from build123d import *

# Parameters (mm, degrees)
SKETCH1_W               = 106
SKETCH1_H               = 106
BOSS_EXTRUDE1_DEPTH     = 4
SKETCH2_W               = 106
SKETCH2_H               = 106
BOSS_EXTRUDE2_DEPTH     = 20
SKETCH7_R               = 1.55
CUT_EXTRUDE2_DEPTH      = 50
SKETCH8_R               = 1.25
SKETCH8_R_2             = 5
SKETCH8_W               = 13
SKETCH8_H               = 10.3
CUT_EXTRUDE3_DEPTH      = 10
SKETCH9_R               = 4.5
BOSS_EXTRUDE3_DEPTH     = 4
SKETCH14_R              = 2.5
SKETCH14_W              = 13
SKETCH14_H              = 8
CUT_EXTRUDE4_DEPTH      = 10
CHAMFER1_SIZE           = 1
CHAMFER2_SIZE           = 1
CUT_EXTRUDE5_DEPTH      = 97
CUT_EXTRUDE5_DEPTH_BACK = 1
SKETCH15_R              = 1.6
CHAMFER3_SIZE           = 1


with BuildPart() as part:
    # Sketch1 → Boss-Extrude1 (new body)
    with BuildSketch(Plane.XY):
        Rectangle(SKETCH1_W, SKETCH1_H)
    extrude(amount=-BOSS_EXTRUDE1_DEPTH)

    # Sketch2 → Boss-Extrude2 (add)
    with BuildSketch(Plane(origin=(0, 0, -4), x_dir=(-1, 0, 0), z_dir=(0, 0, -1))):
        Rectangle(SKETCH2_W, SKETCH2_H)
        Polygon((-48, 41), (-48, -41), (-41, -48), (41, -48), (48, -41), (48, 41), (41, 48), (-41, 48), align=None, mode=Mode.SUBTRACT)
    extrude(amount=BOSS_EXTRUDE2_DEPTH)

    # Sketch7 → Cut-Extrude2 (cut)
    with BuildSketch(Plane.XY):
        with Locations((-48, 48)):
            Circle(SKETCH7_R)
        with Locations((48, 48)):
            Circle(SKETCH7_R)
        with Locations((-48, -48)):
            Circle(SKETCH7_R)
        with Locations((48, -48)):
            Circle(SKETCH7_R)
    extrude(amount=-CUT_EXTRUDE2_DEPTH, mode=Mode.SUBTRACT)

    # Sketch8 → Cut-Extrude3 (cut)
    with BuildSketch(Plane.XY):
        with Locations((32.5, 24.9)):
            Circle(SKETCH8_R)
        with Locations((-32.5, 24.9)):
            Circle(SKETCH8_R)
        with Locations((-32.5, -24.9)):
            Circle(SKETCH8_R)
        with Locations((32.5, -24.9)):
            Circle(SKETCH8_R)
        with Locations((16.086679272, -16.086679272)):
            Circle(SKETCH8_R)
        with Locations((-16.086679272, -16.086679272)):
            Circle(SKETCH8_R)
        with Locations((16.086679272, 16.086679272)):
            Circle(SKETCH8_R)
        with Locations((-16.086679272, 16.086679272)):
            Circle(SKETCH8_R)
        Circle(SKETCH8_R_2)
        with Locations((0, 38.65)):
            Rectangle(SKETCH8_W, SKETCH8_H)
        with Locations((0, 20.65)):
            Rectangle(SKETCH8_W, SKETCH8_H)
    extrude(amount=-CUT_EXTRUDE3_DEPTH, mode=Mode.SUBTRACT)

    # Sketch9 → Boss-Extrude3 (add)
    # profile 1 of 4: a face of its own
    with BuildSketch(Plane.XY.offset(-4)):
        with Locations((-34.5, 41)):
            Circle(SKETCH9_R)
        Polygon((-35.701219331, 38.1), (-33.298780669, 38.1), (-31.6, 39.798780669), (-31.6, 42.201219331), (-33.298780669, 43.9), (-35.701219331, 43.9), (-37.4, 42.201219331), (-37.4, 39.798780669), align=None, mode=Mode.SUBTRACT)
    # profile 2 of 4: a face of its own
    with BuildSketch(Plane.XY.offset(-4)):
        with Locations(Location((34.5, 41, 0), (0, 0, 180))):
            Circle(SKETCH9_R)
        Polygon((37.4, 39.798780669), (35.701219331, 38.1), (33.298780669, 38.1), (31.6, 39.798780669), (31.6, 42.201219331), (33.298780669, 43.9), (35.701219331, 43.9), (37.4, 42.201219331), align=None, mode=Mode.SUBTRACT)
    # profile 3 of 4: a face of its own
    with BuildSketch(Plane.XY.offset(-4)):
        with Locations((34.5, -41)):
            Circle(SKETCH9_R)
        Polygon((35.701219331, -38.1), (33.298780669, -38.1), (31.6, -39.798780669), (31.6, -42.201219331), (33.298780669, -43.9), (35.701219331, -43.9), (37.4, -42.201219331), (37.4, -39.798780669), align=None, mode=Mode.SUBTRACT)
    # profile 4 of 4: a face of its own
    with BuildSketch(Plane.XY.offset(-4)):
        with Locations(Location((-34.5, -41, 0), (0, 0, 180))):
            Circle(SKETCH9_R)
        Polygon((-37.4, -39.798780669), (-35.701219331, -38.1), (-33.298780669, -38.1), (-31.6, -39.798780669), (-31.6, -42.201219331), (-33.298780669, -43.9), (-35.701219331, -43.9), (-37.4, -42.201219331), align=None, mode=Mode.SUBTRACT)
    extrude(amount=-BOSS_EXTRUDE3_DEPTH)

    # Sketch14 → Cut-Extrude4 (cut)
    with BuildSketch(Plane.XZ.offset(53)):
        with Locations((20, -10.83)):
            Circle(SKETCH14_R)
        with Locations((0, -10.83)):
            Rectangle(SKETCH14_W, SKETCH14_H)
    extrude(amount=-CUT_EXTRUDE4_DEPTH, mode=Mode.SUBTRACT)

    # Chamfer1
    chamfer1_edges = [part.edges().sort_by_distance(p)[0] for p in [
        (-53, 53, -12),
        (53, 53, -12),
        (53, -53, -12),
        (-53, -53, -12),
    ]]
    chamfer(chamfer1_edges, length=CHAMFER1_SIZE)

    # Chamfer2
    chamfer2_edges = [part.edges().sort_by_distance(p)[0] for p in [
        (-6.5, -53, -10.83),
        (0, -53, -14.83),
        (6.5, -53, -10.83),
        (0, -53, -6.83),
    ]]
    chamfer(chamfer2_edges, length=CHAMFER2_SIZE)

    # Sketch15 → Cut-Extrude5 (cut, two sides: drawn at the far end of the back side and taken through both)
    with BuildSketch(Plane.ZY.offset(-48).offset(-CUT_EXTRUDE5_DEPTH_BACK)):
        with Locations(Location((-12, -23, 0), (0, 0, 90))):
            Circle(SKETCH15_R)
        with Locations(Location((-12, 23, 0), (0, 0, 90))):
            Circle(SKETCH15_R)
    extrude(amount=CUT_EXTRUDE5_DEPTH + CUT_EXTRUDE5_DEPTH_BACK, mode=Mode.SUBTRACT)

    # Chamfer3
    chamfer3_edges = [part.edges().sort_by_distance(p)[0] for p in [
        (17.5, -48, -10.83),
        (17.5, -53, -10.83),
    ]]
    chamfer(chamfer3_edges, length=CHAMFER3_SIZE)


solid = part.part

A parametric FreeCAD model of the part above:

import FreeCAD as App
import Part
import Sketcher
from FreeCAD import Vector


def edges_at(feature, points):
    """Names of the edges that pass closest to the given points."""
    edges = feature.Shape.Edges
    near = lambda p: min(range(len(edges)), key=lambda i: edges[i].distToShape(Part.Vertex(*p))[0])
    return sorted({f"Edge{near(p) + 1}" for p in points})


def add_polygon(sketch, points):
    """Adds a closed chain of lines whose ends are joined by coincident constraints."""
    first, n = sketch.GeometryCount, len(points)
    for a, b in zip(points, points[1:] + points[:1]):
        sketch.addGeometry(Part.LineSegment(App.Vector(*a, 0), App.Vector(*b, 0)), False)
    for i in range(n):
        sketch.addConstraint(Sketcher.Constraint("Coincident", first + i, 2, first + (i + 1) % n, 1))

doc = App.newDocument("Part")
params = doc.addObject("Spreadsheet::Sheet", "Params")
for row, (alias, value) in enumerate([
    ("sketch1_width", "106 mm"),
    ("pad1_length", "4 mm"),
    ("sketch2_width", "106 mm"),
    ("sketch2_width2", "82 mm"),
    ("pad2_length", "20 mm"),
    ("sketch3_diameter", "3.1 mm"),
    ("pocket1_length", "50 mm"),
    ("sketch4_diameter", "10 mm"),
    ("sketch4_diameter2", "2.5 mm"),
    ("sketch4_width", "13 mm"),
    ("sketch4_height", "10.3 mm"),
    ("pocket2_length", "10 mm"),
    ("sketch5_diameter", "9 mm"),
    ("pad3_length", "4 mm"),
    ("sketch6_diameter", "5 mm"),
    ("sketch6_width", "13 mm"),
    ("sketch6_height", "8 mm"),
    ("pocket3_length", "10 mm"),
    ("chamfer_size", "1 mm"),
    ("chamfer2_size", "1 mm"),
    ("sketch7_diameter", "3.2 mm"),
    ("pocket4_length", "97 mm"),
    ("pocket4_length2", "1 mm"),
    ("chamfer3_size", "1 mm"),
], start=1):
    params.set(f"A{row}", alias)
    params.set(f"B{row}", "=" + value)
    params.setAlias(f"B{row}", alias)

body = doc.addObject("PartDesign::Body", "Body")

# Sketch on XY plane
sketch1 = body.newObject("Sketcher::SketchObject", "Sketch")
sketch1.AttachmentSupport = (doc.getObject("XY_Plane"), [""])
sketch1.MapMode = "FlatFace"
add_polygon(sketch1, [(-53, 53), (-53, -53), (53, -53), (53, 53)])  # lines 0-3
sketch1.addConstraint(Sketcher.Constraint("Vertical", 0))
sketch1.addConstraint(Sketcher.Constraint("Horizontal", 1))
sketch1.addConstraint(Sketcher.Constraint("Vertical", 2))
sketch1.addConstraint(Sketcher.Constraint("Horizontal", 3))
sketch1.addConstraint(Sketcher.Constraint("Symmetric", 0, 2, 2, 2, -1, 1))
sketch1.addConstraint(Sketcher.Constraint("Equal", 3, 0))
sketch1.addConstraint(Sketcher.Constraint("DistanceX", 1, 1, 1, 2, 106.0))
sketch1.setExpression("Constraints[10]", "Params.sketch1_width")
pad1 = body.newObject("PartDesign::Pad", "Pad")
pad1.Profile = sketch1
pad1.setExpression("Length", "Params.pad1_length")
pad1.Reversed = True

# Sketch on XY plane
sketch2 = body.newObject("Sketcher::SketchObject", "Sketch001")
sketch2.AttachmentSupport = (doc.getObject("XY_Plane"), [""])
sketch2.MapMode = "FlatFace"
sketch2.AttachmentOffset = App.Placement(Vector(0, 0, -4), App.Rotation())
add_polygon(sketch2, [(53, 53), (53, -53), (-53, -53), (-53, 53)])  # lines 0-3
add_polygon(sketch2, [(48, -41), (48, 41), (41, 48), (-41, 48), (-48, 41), (-48, -41), (-41, -48), (41, -48)])  # lines 4-11
sketch2.addConstraint(Sketcher.Constraint("Vertical", 0))
sketch2.addConstraint(Sketcher.Constraint("Horizontal", 1))
sketch2.addConstraint(Sketcher.Constraint("Vertical", 2))
sketch2.addConstraint(Sketcher.Constraint("Horizontal", 3))
sketch2.addConstraint(Sketcher.Constraint("Vertical", 4))
sketch2.addConstraint(Sketcher.Constraint("Horizontal", 6))
sketch2.addConstraint(Sketcher.Constraint("Vertical", 8))
sketch2.addConstraint(Sketcher.Constraint("Horizontal", 10))
sketch2.addConstraint(Sketcher.Constraint("Symmetric", 0, 2, 2, 2, -1, 1))
sketch2.addConstraint(Sketcher.Constraint("Symmetric", 4, 2, 8, 2, -1, 1))
sketch2.addConstraint(Sketcher.Constraint("Symmetric", 5, 2, 9, 2, -1, 1))
sketch2.addConstraint(Sketcher.Constraint("Perpendicular", 5, 7))
sketch2.addConstraint(Sketcher.Constraint("Perpendicular", 9, 11))
sketch2.addConstraint(Sketcher.Constraint("Horizontal", 4, 2, 7, 2))
sketch2.addConstraint(Sketcher.Constraint("Horizontal", 8, 2, 11, 2))
sketch2.addConstraint(Sketcher.Constraint("Vertical", 6, 2, 9, 2))
sketch2.addConstraint(Sketcher.Constraint("Equal", 3, 0))
sketch2.addConstraint(Sketcher.Constraint("Equal", 10, 4))
sketch2.addConstraint(Sketcher.Constraint("DistanceX", 1, 2, 1, 1, 106.0))
sketch2.addConstraint(Sketcher.Constraint("DistanceX", 6, 2, 6, 1, 82.0))
sketch2.addConstraint(Sketcher.Constraint("DistanceX", -1, 1, 4, 2, 48.0))
sketch2.setExpression("Constraints[30]", "Params.sketch2_width")
sketch2.setExpression("Constraints[31]", "Params.sketch2_width2")
pad2 = body.newObject("PartDesign::Pad", "Pad001")
pad2.Profile = sketch2
pad2.setExpression("Length", "Params.pad2_length")
pad2.Reversed = True

# Sketch on XY plane
sketch3 = body.newObject("Sketcher::SketchObject", "Sketch002")
sketch3.AttachmentSupport = (doc.getObject("XY_Plane"), [""])
sketch3.MapMode = "FlatFace"
sketch3.addGeometry(Part.Circle(Vector(-48, 48, 0), Vector(0, 0, 1), 1.55), False)
sketch3.addGeometry(Part.Circle(Vector(48, 48, 0), Vector(0, 0, 1), 1.55), False)
sketch3.addGeometry(Part.Circle(Vector(-48, -48, 0), Vector(0, 0, 1), 1.55), False)
sketch3.addGeometry(Part.Circle(Vector(48, -48, 0), Vector(0, 0, 1), 1.55), False)
sketch3.addConstraint(Sketcher.Constraint("Equal", 0, 1))
sketch3.addConstraint(Sketcher.Constraint("Equal", 1, 2))
sketch3.addConstraint(Sketcher.Constraint("Equal", 2, 3))
sketch3.addConstraint(Sketcher.Constraint("Symmetric", 1, 3, 2, 3, -1, 1))
sketch3.addConstraint(Sketcher.Constraint("Symmetric", 0, 3, 3, 3, -1, 1))
sketch3.addConstraint(Sketcher.Constraint("Symmetric", 0, 3, 1, 3, -2))
sketch3.addConstraint(Sketcher.Constraint("Diameter", 0, 3.1))
sketch3.addConstraint(Sketcher.Constraint("DistanceX", 0, 3, -1, 1, 48.0))
sketch3.addConstraint(Sketcher.Constraint("DistanceY", -1, 1, 0, 3, 48.0))
sketch3.setExpression("Constraints[6]", "Params.sketch3_diameter")
pocket1 = body.newObject("PartDesign::Pocket", "Pocket")
pocket1.Profile = sketch3
pocket1.setExpression("Length", "Params.pocket1_length")

# Sketch on XY plane
sketch4 = body.newObject("Sketcher::SketchObject", "Sketch003")
sketch4.AttachmentSupport = (doc.getObject("XY_Plane"), [""])
sketch4.MapMode = "FlatFace"
sketch4.addGeometry(Part.Circle(Vector(32.5, 24.9, 0), Vector(0, 0, 1), 1.25), False)  # 0
sketch4.addGeometry(Part.Circle(Vector(-32.5, 24.9, 0), Vector(0, 0, 1), 1.25), False)  # 1
sketch4.addGeometry(Part.Circle(Vector(-32.5, -24.9, 0), Vector(0, 0, 1), 1.25), False)  # 2
sketch4.addGeometry(Part.Circle(Vector(32.5, -24.9, 0), Vector(0, 0, 1), 1.25), False)  # 3
sketch4.addGeometry(Part.Circle(Vector(16.086679, -16.086679, 0), Vector(0, 0, 1), 1.25), False)  # 4
sketch4.addGeometry(Part.Circle(Vector(-16.086679, -16.086679, 0), Vector(0, 0, 1), 1.25), False)  # 5
sketch4.addGeometry(Part.Circle(Vector(16.086679, 16.086679, 0), Vector(0, 0, 1), 1.25), False)  # 6
sketch4.addGeometry(Part.Circle(Vector(-16.086679, 16.086679, 0), Vector(0, 0, 1), 1.25), False)  # 7
sketch4.addGeometry(Part.Circle(Vector(0, 0, 0), Vector(0, 0, 1), 5), False)  # 8
add_polygon(sketch4, [(-6.5, 43.8), (-6.5, 33.5), (6.5, 33.5), (6.5, 43.8)])  # lines 9-12
add_polygon(sketch4, [(-6.5, 25.8), (-6.5, 15.5), (6.5, 15.5), (6.5, 25.8)])  # lines 13-16
sketch4.addConstraint(Sketcher.Constraint("Vertical", 9))
sketch4.addConstraint(Sketcher.Constraint("Horizontal", 10))
sketch4.addConstraint(Sketcher.Constraint("Vertical", 11))
sketch4.addConstraint(Sketcher.Constraint("Horizontal", 12))
sketch4.addConstraint(Sketcher.Constraint("Vertical", 13))
sketch4.addConstraint(Sketcher.Constraint("Horizontal", 14))
sketch4.addConstraint(Sketcher.Constraint("Vertical", 15))
sketch4.addConstraint(Sketcher.Constraint("Horizontal", 16))
sketch4.addConstraint(Sketcher.Constraint("Coincident", 8, 3, -1, 1))
sketch4.addConstraint(Sketcher.Constraint("Equal", 0, 1))
sketch4.addConstraint(Sketcher.Constraint("Equal", 1, 2))
sketch4.addConstraint(Sketcher.Constraint("Equal", 2, 3))
sketch4.addConstraint(Sketcher.Constraint("Equal", 3, 4))
sketch4.addConstraint(Sketcher.Constraint("Equal", 4, 5))
sketch4.addConstraint(Sketcher.Constraint("Equal", 5, 6))
sketch4.addConstraint(Sketcher.Constraint("Equal", 6, 7))
sketch4.addConstraint(Sketcher.Constraint("Symmetric", 0, 3, 2, 3, -1, 1))
sketch4.addConstraint(Sketcher.Constraint("Symmetric", 1, 3, 3, 3, -1, 1))
sketch4.addConstraint(Sketcher.Constraint("Symmetric", 5, 3, 6, 3, -1, 1))
sketch4.addConstraint(Sketcher.Constraint("Symmetric", 4, 3, 7, 3, -1, 1))
sketch4.addConstraint(Sketcher.Constraint("Symmetric", 0, 3, 1, 3, -2))
sketch4.addConstraint(Sketcher.Constraint("Symmetric", 4, 3, 5, 3, -2))
sketch4.addConstraint(Sketcher.Constraint("Vertical", 12, 2, 13, 2))
sketch4.addConstraint(Sketcher.Constraint("Vertical", 11, 2, 14, 2))
sketch4.addConstraint(Sketcher.Constraint("Equal", 11, 13))
sketch4.addConstraint(Sketcher.Constraint("Diameter", 8, 10.0))
sketch4.addConstraint(Sketcher.Constraint("Diameter", 0, 2.5))
sketch4.addConstraint(Sketcher.Constraint("DistanceX", 10, 1, 10, 2, 13.0))
sketch4.addConstraint(Sketcher.Constraint("DistanceY", 9, 2, 9, 1, 10.3))
sketch4.addConstraint(Sketcher.Constraint("DistanceX", 1, 3, 0, 3, 65.0))
sketch4.addConstraint(Sketcher.Constraint("DistanceX", 1, 3, 9, 2, 26.0))
sketch4.addConstraint(Sketcher.Constraint("DistanceY", 13, 2, 9, 2, 18.0))
sketch4.addConstraint(Sketcher.Constraint("DistanceY", -1, 1, 0, 3, 24.9))
sketch4.addConstraint(Sketcher.Constraint("DistanceY", -1, 1, 9, 2, 33.5))
sketch4.addConstraint(Sketcher.Constraint("DistanceX", -1, 1, 4, 3, 16.086679))
sketch4.addConstraint(Sketcher.Constraint("DistanceY", 4, 3, -1, 1, 16.086679))
sketch4.setExpression("Constraints[33]", "Params.sketch4_diameter")
sketch4.setExpression("Constraints[34]", "Params.sketch4_diameter2")
sketch4.setExpression("Constraints[35]", "Params.sketch4_width")
sketch4.setExpression("Constraints[36]", "Params.sketch4_height")
pocket2 = body.newObject("PartDesign::Pocket", "Pocket001")
pocket2.Profile = sketch4
pocket2.setExpression("Length", "Params.pocket2_length")

# Sketch on XY plane
sketch5 = body.newObject("Sketcher::SketchObject", "Sketch004")
sketch5.AttachmentSupport = (doc.getObject("XY_Plane"), [""])
sketch5.MapMode = "FlatFace"
sketch5.AttachmentOffset = App.Placement(Vector(0, 0, -4), App.Rotation())
sketch5.addGeometry(Part.Circle(Vector(-34.5, 41, 0), Vector(0, 0, 1), 4.5), False)  # 0
add_polygon(sketch5, [(-33.298781, 38.1), (-35.701219, 38.1), (-37.4, 39.798781), (-37.4, 42.201219), (-35.701219, 43.9), (-33.298781, 43.9), (-31.6, 42.201219), (-31.6, 39.798781)])  # lines 1-8
sketch5.addGeometry(Part.Circle(Vector(34.5, 41, 0), Vector(0, 0, 1), 4.5), False)  # 9
add_polygon(sketch5, [(37.4, 42.201219), (37.4, 39.798781), (35.701219, 38.1), (33.298781, 38.1), (31.6, 39.798781), (31.6, 42.201219), (33.298781, 43.9), (35.701219, 43.9)])  # lines 10-17
sketch5.addGeometry(Part.Circle(Vector(34.5, -41, 0), Vector(0, 0, 1), 4.5), False)  # 18
add_polygon(sketch5, [(33.298781, -38.1), (35.701219, -38.1), (37.4, -39.798781), (37.4, -42.201219), (35.701219, -43.9), (33.298781, -43.9), (31.6, -42.201219), (31.6, -39.798781)])  # lines 19-26
sketch5.addGeometry(Part.Circle(Vector(-34.5, -41, 0), Vector(0, 0, 1), 4.5), False)  # 27
add_polygon(sketch5, [(-37.4, -42.201219), (-37.4, -39.798781), (-35.701219, -38.1), (-33.298781, -38.1), (-31.6, -39.798781), (-31.6, -42.201219), (-33.298781, -43.9), (-35.701219, -43.9)])  # lines 28-35
sketch5.addConstraint(Sketcher.Constraint("Horizontal", 1))
sketch5.addConstraint(Sketcher.Constraint("Vertical", 3))
sketch5.addConstraint(Sketcher.Constraint("Horizontal", 5))
sketch5.addConstraint(Sketcher.Constraint("Vertical", 7))
sketch5.addConstraint(Sketcher.Constraint("Vertical", 10))
sketch5.addConstraint(Sketcher.Constraint("Horizontal", 12))
sketch5.addConstraint(Sketcher.Constraint("Vertical", 14))
sketch5.addConstraint(Sketcher.Constraint("Horizontal", 16))
sketch5.addConstraint(Sketcher.Constraint("Horizontal", 19))
sketch5.addConstraint(Sketcher.Constraint("Vertical", 21))
sketch5.addConstraint(Sketcher.Constraint("Horizontal", 23))
sketch5.addConstraint(Sketcher.Constraint("Vertical", 25))
sketch5.addConstraint(Sketcher.Constraint("Vertical", 28))
sketch5.addConstraint(Sketcher.Constraint("Horizontal", 30))
sketch5.addConstraint(Sketcher.Constraint("Vertical", 32))
sketch5.addConstraint(Sketcher.Constraint("Horizontal", 34))
sketch5.addConstraint(Sketcher.Constraint("Equal", 0, 9))
sketch5.addConstraint(Sketcher.Constraint("Equal", 9, 18))
sketch5.addConstraint(Sketcher.Constraint("Equal", 18, 27))
sketch5.addConstraint(Sketcher.Constraint("Symmetric", 0, 3, 18, 3, -1, 1))
sketch5.addConstraint(Sketcher.Constraint("Symmetric", 9, 3, 27, 3, -1, 1))
sketch5.addConstraint(Sketcher.Constraint("Symmetric", 1, 2, 19, 2, -1, 1))
sketch5.addConstraint(Sketcher.Constraint("Symmetric", 2, 2, 20, 2, -1, 1))
sketch5.addConstraint(Sketcher.Constraint("Symmetric", 4, 2, 22, 2, -1, 1))
sketch5.addConstraint(Sketcher.Constraint("Symmetric", 6, 2, 24, 2, -1, 1))
sketch5.addConstraint(Sketcher.Constraint("Symmetric", 10, 2, 28, 2, -1, 1))
sketch5.addConstraint(Sketcher.Constraint("Symmetric", 11, 2, 29, 2, -1, 1))
sketch5.addConstraint(Sketcher.Constraint("Symmetric", 13, 2, 31, 2, -1, 1))
sketch5.addConstraint(Sketcher.Constraint("Symmetric", 15, 2, 33, 2, -1, 1))
sketch5.addConstraint(Sketcher.Constraint("Symmetric", 0, 3, 9, 3, -2))
sketch5.addConstraint(Sketcher.Constraint("Symmetric", 2, 2, 10, 2, -2))
sketch5.addConstraint(Sketcher.Constraint("Symmetric", 1, 2, 11, 2, -2))
sketch5.addConstraint(Sketcher.Constraint("Symmetric", 7, 2, 13, 2, -2))
sketch5.addConstraint(Sketcher.Constraint("Symmetric", 5, 2, 15, 2, -2))
sketch5.addConstraint(Sketcher.Constraint("Perpendicular", 2, 4))
sketch5.addConstraint(Sketcher.Constraint("Perpendicular", 4, 6))
sketch5.addConstraint(Sketcher.Constraint("Perpendicular", 6, 8))
sketch5.addConstraint(Sketcher.Constraint("Parallel", 8, 11))
sketch5.addConstraint(Sketcher.Constraint("Perpendicular", 11, 13))
sketch5.addConstraint(Sketcher.Constraint("Perpendicular", 13, 15))
sketch5.addConstraint(Sketcher.Constraint("Perpendicular", 15, 17))
sketch5.addConstraint(Sketcher.Constraint("Perpendicular", 20, 22))
sketch5.addConstraint(Sketcher.Constraint("Perpendicular", 22, 24))
sketch5.addConstraint(Sketcher.Constraint("Perpendicular", 24, 26))
sketch5.addConstraint(Sketcher.Constraint("Perpendicular", 29, 31))
sketch5.addConstraint(Sketcher.Constraint("Perpendicular", 31, 33))
sketch5.addConstraint(Sketcher.Constraint("Perpendicular", 33, 35))
sketch5.addConstraint(Sketcher.Constraint("Horizontal", 3, 2, 6, 2))
sketch5.addConstraint(Sketcher.Constraint("Horizontal", 2, 2, 7, 2))
sketch5.addConstraint(Sketcher.Constraint("Horizontal", 14, 2, 17, 2))
sketch5.addConstraint(Sketcher.Constraint("Horizontal", 20, 2, 25, 2))
sketch5.addConstraint(Sketcher.Constraint("Horizontal", 32, 2, 35, 2))
sketch5.addConstraint(Sketcher.Constraint("Vertical", 1, 2, 4, 2))
sketch5.addConstraint(Sketcher.Constraint("Equal", 34, 3))
sketch5.addConstraint(Sketcher.Constraint("Diameter", 0, 9.0))
sketch5.addConstraint(Sketcher.Constraint("DistanceY", -1, 1, 0, 3, 41.0))
sketch5.addConstraint(Sketcher.Constraint("DistanceX", 0, 3, 9, 3, 69.0))
sketch5.addConstraint(Sketcher.Constraint("DistanceX", 7, 2, 10, 2, 69.0))
sketch5.addConstraint(Sketcher.Constraint("DistanceY", -1, 1, 1, 2, 38.1))
sketch5.addConstraint(Sketcher.Constraint("DistanceX", 2, 2, -1, 1, 37.4))
sketch5.addConstraint(Sketcher.Constraint("DistanceX", 1, 2, 1, 1, 2.402439))
sketch5.setExpression("Constraints[86]", "Params.sketch5_diameter")
pad3 = body.newObject("PartDesign::Pad", "Pad002")
pad3.Profile = sketch5
pad3.setExpression("Length", "Params.pad3_length")
pad3.Reversed = True

# Sketch on XZ plane
sketch6 = body.newObject("Sketcher::SketchObject", "Sketch005")
sketch6.AttachmentSupport = (doc.getObject("XZ_Plane"), [""])
sketch6.MapMode = "FlatFace"
sketch6.AttachmentOffset = App.Placement(Vector(0, 0, 53), App.Rotation())
sketch6.addGeometry(Part.Circle(Vector(20, -10.83, 0), Vector(0, 0, 1), 2.5), False)  # 0
add_polygon(sketch6, [(-6.5, -6.83), (-6.5, -14.83), (6.5, -14.83), (6.5, -6.83)])  # lines 1-4
sketch6.addConstraint(Sketcher.Constraint("Vertical", 1))
sketch6.addConstraint(Sketcher.Constraint("Horizontal", 2))
sketch6.addConstraint(Sketcher.Constraint("Vertical", 3))
sketch6.addConstraint(Sketcher.Constraint("Horizontal", 4))
sketch6.addConstraint(Sketcher.Constraint("Diameter", 0, 5.0))
sketch6.addConstraint(Sketcher.Constraint("DistanceX", 2, 1, 2, 2, 13.0))
sketch6.addConstraint(Sketcher.Constraint("DistanceY", 1, 2, 1, 1, 8.0))
sketch6.addConstraint(Sketcher.Constraint("DistanceX", -1, 1, 0, 3, 20.0))
sketch6.addConstraint(Sketcher.Constraint("DistanceY", 1, 2, 0, 3, 4.0))
sketch6.addConstraint(Sketcher.Constraint("DistanceX", 1, 2, -1, 1, 6.5))
sketch6.addConstraint(Sketcher.Constraint("DistanceY", 0, 3, -1, 1, 10.83))
sketch6.setExpression("Constraints[8]", "Params.sketch6_diameter")
sketch6.setExpression("Constraints[9]", "Params.sketch6_width")
sketch6.setExpression("Constraints[10]", "Params.sketch6_height")
pocket3 = body.newObject("PartDesign::Pocket", "Pocket002")
pocket3.Profile = sketch6
pocket3.setExpression("Length", "Params.pocket3_length")
doc.recompute()

chamfer = body.newObject("PartDesign::Chamfer", "Chamfer")
chamfer.Base = (pocket3, edges_at(pocket3, [
    (-53, 53, -12),
    (53, 53, -12),
    (53, -53, -12),
    (-53, -53, -12),
]))
chamfer.setExpression("Size", "Params.chamfer_size")
doc.recompute()

chamfer2 = body.newObject("PartDesign::Chamfer", "Chamfer001")
chamfer2.Base = (chamfer, edges_at(chamfer, [
    (-6.5, -53, -10.83),
    (0, -53, -14.83),
    (6.5, -53, -10.83),
    (0, -53, -6.83),
]))
chamfer2.setExpression("Size", "Params.chamfer2_size")

# Sketch on YZ plane
sketch7 = body.newObject("Sketcher::SketchObject", "Sketch006")
sketch7.AttachmentSupport = (doc.getObject("YZ_Plane"), [""])
sketch7.MapMode = "FlatFace"
sketch7.AttachmentOffset = App.Placement(Vector(0, 0, 48), App.Rotation())
sketch7.addGeometry(Part.Circle(Vector(-23, -12, 0), Vector(0, 0, 1), 1.6), False)
sketch7.addGeometry(Part.Circle(Vector(23, -12, 0), Vector(0, 0, 1), 1.6), False)
sketch7.addConstraint(Sketcher.Constraint("Equal", 0, 1))
sketch7.addConstraint(Sketcher.Constraint("Symmetric", 0, 3, 1, 3, -2))
sketch7.addConstraint(Sketcher.Constraint("Diameter", 0, 3.2))
sketch7.addConstraint(Sketcher.Constraint("DistanceX", 0, 3, -1, 1, 23.0))
sketch7.addConstraint(Sketcher.Constraint("DistanceY", 0, 3, -1, 1, 12.0))
sketch7.setExpression("Constraints[2]", "Params.sketch7_diameter")
pocket4 = body.newObject("PartDesign::Pocket", "Pocket003")
pocket4.Profile = sketch7
pocket4.Type = "TwoLengths"
pocket4.setExpression("Length", "Params.pocket4_length")
pocket4.setExpression("Length2", "Params.pocket4_length2")
doc.recompute()

chamfer3 = body.newObject("PartDesign::Chamfer", "Chamfer002")
chamfer3.Base = (pocket4, edges_at(pocket4, [(17.5, -48, -10.83), (17.5, -53, -10.83)]))
chamfer3.setExpression("Size", "Params.chamfer3_size")

doc.recompute()
